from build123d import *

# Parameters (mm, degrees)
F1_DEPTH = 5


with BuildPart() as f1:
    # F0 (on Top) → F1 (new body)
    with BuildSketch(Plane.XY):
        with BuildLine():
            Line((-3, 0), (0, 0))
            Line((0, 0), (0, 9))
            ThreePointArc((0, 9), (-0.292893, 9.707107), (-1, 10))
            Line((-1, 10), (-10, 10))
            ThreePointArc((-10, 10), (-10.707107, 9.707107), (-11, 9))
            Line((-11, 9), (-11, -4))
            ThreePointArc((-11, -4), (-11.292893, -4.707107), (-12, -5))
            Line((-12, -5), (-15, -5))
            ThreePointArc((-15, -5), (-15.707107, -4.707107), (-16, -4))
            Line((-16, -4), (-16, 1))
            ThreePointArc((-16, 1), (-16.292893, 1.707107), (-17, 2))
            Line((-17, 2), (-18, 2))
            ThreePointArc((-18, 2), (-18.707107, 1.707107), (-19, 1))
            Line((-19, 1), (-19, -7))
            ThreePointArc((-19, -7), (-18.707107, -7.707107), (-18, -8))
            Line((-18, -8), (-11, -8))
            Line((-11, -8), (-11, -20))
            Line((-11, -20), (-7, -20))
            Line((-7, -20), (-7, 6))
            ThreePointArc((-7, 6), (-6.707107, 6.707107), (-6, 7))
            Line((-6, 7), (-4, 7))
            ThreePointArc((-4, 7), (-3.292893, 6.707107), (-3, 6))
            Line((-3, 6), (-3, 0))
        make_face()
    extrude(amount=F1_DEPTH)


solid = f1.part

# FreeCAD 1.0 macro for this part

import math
import FreeCAD as App
import Part
import Sketcher
from FreeCAD import Vector

doc = App.newDocument("Part")
body = doc.addObject("PartDesign::Body", "Body")

sketch1 = body.newObject("Sketcher::SketchObject", "Sketch")
sketch1.AttachmentSupport = (doc.getObject("XY_Plane"), [""])
sketch1.MapMode = "FlatFace"
sketch1.addGeometry(Part.LineSegment(Vector(-3, 0, 0), Vector(0, 0, 0)), False)
sketch1.addGeometry(Part.LineSegment(Vector(0, 0, 0), Vector(0, 9, 0)), False)
sketch1.addGeometry(Part.ArcOfCircle(Part.Circle(Vector(-0.999999, 9.000001, 0), Vector(0, 0, 1), 0.999999), math.radians(-0.000043), math.radians(90.000043)), False)
sketch1.addGeometry(Part.LineSegment(Vector(-1, 10, 0), Vector(-10, 10, 0)), False)
sketch1.addGeometry(Part.ArcOfCircle(Part.Circle(Vector(-10.000001, 9.000001, 0), Vector(0, 0, 1), 0.999999), math.radians(89.999957), math.radians(180.000043)), False)
sketch1.addGeometry(Part.LineSegment(Vector(-11, 9, 0), Vector(-11, -4, 0)), False)
sketch1.addGeometry(Part.ArcOfCircle(Part.Circle(Vector(-11.999999, -4.000001, 0), Vector(0, 0, 1), 0.999999), math.radians(-90.000043), math.radians(0.000043)), False)
sketch1.addGeometry(Part.LineSegment(Vector(-12, -5, 0), Vector(-15, -5, 0)), False)
sketch1.addGeometry(Part.ArcOfCircle(Part.Circle(Vector(-15.000001, -4.000001, 0), Vector(0, 0, 1), 0.999999), math.radians(179.999957), math.radians(270.000043)), False)
sketch1.addGeometry(Part.LineSegment(Vector(-16, -4, 0), Vector(-16, 1, 0)), False)
sketch1.addGeometry(Part.ArcOfCircle(Part.Circle(Vector(-16.999999, 1.000001, 0), Vector(0, 0, 1), 0.999999), math.radians(-0.000043), math.radians(90.000043)), False)
sketch1.addGeometry(Part.LineSegment(Vector(-17, 2, 0), Vector(-18, 2, 0)), False)
sketch1.addGeometry(Part.ArcOfCircle(Part.Circle(Vector(-18.000001, 1.000001, 0), Vector(0, 0, 1), 0.999999), math.radians(89.999957), math.radians(180.000043)), False)
sketch1.addGeometry(Part.LineSegment(Vector(-19, 1, 0), Vector(-19, -7, 0)), False)
sketch1.addGeometry(Part.ArcOfCircle(Part.Circle(Vector(-18.000001, -7.000001, 0), Vector(0, 0, 1), 0.999999), math.radians(179.999957), math.radians(270.000043)), False)
sketch1.addGeometry(Part.LineSegment(Vector(-18, -8, 0), Vector(-11, -8, 0)), False)
sketch1.addGeometry(Part.LineSegment(Vector(-11, -8, 0), Vector(-11, -20, 0)), False)
sketch1.addGeometry(Part.LineSegment(Vector(-11, -20, 0), Vector(-7, -20, 0)), False)
sketch1.addGeometry(Part.LineSegment(Vector(-7, -20, 0), Vector(-7, 6, 0)), False)
sketch1.addGeometry(Part.ArcOfCircle(Part.Circle(Vector(-6.000001, 6.000001, 0), Vector(0, 0, 1), 0.999999), math.radians(89.999957), math.radians(180.000043)), False)
sketch1.addGeometry(Part.LineSegment(Vector(-6, 7, 0), Vector(-4, 7, 0)), False)
sketch1.addGeometry(Part.ArcOfCircle(Part.Circle(Vector(-3.999999, 6.000001, 0), Vector(0, 0, 1), 0.999999), math.radians(-0.000043), math.radians(90.000043)), False)
sketch1.addGeometry(Part.LineSegment(Vector(-3, 6, 0), Vector(-3, 0, 0)), False)
sketch1.addConstraint(Sketcher.Constraint("Coincident", 0, 2, 1, 1))
sketch1.addConstraint(Sketcher.Constraint("Tangent", 1, 2, 2, 1))
sketch1.addConstraint(Sketcher.Constraint("Tangent", 2, 2, 3, 1))
sketch1.addConstraint(Sketcher.Constraint("Tangent", 3, 2, 4, 1))
sketch1.addConstraint(Sketcher.Constraint("Tangent", 4, 2, 5, 1))
sketch1.addConstraint(Sketcher.Constraint("Tangent", 5, 2, 6, 2))
sketch1.addConstraint(Sketcher.Constraint("Tangent", 6, 1, 7, 1))
sketch1.addConstraint(Sketcher.Constraint("Tangent", 7, 2, 8, 2))
sketch1.addConstraint(Sketcher.Constraint("Tangent", 8, 1, 9, 1))
sketch1.addConstraint(Sketcher.Constraint("Tangent", 9, 2, 10, 1))
sketch1.addConstraint(Sketcher.Constraint("Tangent", 10, 2, 11, 1))
sketch1.addConstraint(Sketcher.Constraint("Tangent", 11, 2, 12, 1))
sketch1.addConstraint(Sketcher.Constraint("Tangent", 12, 2, 13, 1))
sketch1.addConstraint(Sketcher.Constraint("Tangent", 13, 2, 14, 1))
sketch1.addConstraint(Sketcher.Constraint("Tangent", 14, 2, 15, 1))
sketch1.addConstraint(Sketcher.Constraint("Coincident", 15, 2, 16, 1))
sketch1.addConstraint(Sketcher.Constraint("Coincident", 16, 2, 17, 1))
sketch1.addConstraint(Sketcher.Constraint("Coincident", 17, 2, 18, 1))
sketch1.addConstraint(Sketcher.Constraint("Tangent", 18, 2, 19, 2))
sketch1.addConstraint(Sketcher.Constraint("Tangent", 19, 1, 20, 1))
sketch1.addConstraint(Sketcher.Constraint("Tangent", 20, 2, 21, 2))
sketch1.addConstraint(Sketcher.Constraint("Tangent", 21, 1, 22, 1))
sketch1.addConstraint(Sketcher.Constraint("Coincident", 22, 2, 0, 1))
sketch1.addConstraint(Sketcher.Constraint("Horizontal", 0))
sketch1.addConstraint(Sketcher.Constraint("Vertical", 1))
sketch1.addConstraint(Sketcher.Constraint("Horizontal", 3))
sketch1.addConstraint(Sketcher.Constraint("Vertical", 5))
sketch1.addConstraint(Sketcher.Constraint("Horizontal", 7))
sketch1.addConstraint(Sketcher.Constraint("Vertical", 9))
sketch1.addConstraint(Sketcher.Constraint("Horizontal", 11))
sketch1.addConstraint(Sketcher.Constraint("Vertical", 13))
sketch1.addConstraint(Sketcher.Constraint("Horizontal", 15))
sketch1.addConstraint(Sketcher.Constraint("Vertical", 16))
sketch1.addConstraint(Sketcher.Constraint("Horizontal", 17))
sketch1.addConstraint(Sketcher.Constraint("Vertical", 18))
sketch1.addConstraint(Sketcher.Constraint("Horizontal", 20))
sketch1.addConstraint(Sketcher.Constraint("Vertical", 22))
sketch1.addConstraint(Sketcher.Constraint("Coincident", 0, 2, -1, 1))
sketch1.addConstraint(Sketcher.Constraint("Equal", 2, 4))
sketch1.addConstraint(Sketcher.Constraint("Equal", 4, 6))
sketch1.addConstraint(Sketcher.Constraint("Equal", 6, 8))
sketch1.addConstraint(Sketcher.Constraint("Equal", 8, 10))
sketch1.addConstraint(Sketcher.Constraint("Equal", 10, 12))
sketch1.addConstraint(Sketcher.Constraint("Equal", 12, 14))
sketch1.addConstraint(Sketcher.Constraint("Equal", 14, 19))
sketch1.addConstraint(Sketcher.Constraint("Equal", 19, 21))
sketch1.addConstraint(Sketcher.Constraint("Vertical", 5, 2, 15, 2))
sketch1.addConstraint(Sketcher.Constraint("Equal", 0, 7))
sketch1.addConstraint(Sketcher.Constraint("Equal", 3, 1))
sketch1.addConstraint(Sketcher.Constraint("Radius", 2, 0.999999))
sketch1.addConstraint(Sketcher.Constraint("DistanceX", 0, 1, 0, 2, 3.0))
sketch1.addConstraint(Sketcher.Constraint("DistanceX", 3, 2, 3, 1, 9.0))
sketch1.addConstraint(Sketcher.Constraint("DistanceX", 11, 2, 11, 1, 1.0))
sketch1.addConstraint(Sketcher.Constraint("DistanceX", 17, 1, 17, 2, 4.0))
sketch1.addConstraint(Sketcher.Constraint("DistanceY", 5, 2, 5, 1, 13.0))
sketch1.addConstraint(Sketcher.Constraint("DistanceY", 9, 1, 9, 2, 5.0))
sketch1.addConstraint(Sketcher.Constraint("DistanceY", 13, 2, 13, 1, 8.0))
sketch1.addConstraint(Sketcher.Constraint("DistanceY", 16, 2, 16, 1, 12.0))
sketch1.addConstraint(Sketcher.Constraint("DistanceY", 18, 1, 18, 2, 26.0))
pad1 = body.newObject("PartDesign::Pad", "Pad")
pad1.Profile = sketch1
pad1.Length = 5

doc.recompute()
